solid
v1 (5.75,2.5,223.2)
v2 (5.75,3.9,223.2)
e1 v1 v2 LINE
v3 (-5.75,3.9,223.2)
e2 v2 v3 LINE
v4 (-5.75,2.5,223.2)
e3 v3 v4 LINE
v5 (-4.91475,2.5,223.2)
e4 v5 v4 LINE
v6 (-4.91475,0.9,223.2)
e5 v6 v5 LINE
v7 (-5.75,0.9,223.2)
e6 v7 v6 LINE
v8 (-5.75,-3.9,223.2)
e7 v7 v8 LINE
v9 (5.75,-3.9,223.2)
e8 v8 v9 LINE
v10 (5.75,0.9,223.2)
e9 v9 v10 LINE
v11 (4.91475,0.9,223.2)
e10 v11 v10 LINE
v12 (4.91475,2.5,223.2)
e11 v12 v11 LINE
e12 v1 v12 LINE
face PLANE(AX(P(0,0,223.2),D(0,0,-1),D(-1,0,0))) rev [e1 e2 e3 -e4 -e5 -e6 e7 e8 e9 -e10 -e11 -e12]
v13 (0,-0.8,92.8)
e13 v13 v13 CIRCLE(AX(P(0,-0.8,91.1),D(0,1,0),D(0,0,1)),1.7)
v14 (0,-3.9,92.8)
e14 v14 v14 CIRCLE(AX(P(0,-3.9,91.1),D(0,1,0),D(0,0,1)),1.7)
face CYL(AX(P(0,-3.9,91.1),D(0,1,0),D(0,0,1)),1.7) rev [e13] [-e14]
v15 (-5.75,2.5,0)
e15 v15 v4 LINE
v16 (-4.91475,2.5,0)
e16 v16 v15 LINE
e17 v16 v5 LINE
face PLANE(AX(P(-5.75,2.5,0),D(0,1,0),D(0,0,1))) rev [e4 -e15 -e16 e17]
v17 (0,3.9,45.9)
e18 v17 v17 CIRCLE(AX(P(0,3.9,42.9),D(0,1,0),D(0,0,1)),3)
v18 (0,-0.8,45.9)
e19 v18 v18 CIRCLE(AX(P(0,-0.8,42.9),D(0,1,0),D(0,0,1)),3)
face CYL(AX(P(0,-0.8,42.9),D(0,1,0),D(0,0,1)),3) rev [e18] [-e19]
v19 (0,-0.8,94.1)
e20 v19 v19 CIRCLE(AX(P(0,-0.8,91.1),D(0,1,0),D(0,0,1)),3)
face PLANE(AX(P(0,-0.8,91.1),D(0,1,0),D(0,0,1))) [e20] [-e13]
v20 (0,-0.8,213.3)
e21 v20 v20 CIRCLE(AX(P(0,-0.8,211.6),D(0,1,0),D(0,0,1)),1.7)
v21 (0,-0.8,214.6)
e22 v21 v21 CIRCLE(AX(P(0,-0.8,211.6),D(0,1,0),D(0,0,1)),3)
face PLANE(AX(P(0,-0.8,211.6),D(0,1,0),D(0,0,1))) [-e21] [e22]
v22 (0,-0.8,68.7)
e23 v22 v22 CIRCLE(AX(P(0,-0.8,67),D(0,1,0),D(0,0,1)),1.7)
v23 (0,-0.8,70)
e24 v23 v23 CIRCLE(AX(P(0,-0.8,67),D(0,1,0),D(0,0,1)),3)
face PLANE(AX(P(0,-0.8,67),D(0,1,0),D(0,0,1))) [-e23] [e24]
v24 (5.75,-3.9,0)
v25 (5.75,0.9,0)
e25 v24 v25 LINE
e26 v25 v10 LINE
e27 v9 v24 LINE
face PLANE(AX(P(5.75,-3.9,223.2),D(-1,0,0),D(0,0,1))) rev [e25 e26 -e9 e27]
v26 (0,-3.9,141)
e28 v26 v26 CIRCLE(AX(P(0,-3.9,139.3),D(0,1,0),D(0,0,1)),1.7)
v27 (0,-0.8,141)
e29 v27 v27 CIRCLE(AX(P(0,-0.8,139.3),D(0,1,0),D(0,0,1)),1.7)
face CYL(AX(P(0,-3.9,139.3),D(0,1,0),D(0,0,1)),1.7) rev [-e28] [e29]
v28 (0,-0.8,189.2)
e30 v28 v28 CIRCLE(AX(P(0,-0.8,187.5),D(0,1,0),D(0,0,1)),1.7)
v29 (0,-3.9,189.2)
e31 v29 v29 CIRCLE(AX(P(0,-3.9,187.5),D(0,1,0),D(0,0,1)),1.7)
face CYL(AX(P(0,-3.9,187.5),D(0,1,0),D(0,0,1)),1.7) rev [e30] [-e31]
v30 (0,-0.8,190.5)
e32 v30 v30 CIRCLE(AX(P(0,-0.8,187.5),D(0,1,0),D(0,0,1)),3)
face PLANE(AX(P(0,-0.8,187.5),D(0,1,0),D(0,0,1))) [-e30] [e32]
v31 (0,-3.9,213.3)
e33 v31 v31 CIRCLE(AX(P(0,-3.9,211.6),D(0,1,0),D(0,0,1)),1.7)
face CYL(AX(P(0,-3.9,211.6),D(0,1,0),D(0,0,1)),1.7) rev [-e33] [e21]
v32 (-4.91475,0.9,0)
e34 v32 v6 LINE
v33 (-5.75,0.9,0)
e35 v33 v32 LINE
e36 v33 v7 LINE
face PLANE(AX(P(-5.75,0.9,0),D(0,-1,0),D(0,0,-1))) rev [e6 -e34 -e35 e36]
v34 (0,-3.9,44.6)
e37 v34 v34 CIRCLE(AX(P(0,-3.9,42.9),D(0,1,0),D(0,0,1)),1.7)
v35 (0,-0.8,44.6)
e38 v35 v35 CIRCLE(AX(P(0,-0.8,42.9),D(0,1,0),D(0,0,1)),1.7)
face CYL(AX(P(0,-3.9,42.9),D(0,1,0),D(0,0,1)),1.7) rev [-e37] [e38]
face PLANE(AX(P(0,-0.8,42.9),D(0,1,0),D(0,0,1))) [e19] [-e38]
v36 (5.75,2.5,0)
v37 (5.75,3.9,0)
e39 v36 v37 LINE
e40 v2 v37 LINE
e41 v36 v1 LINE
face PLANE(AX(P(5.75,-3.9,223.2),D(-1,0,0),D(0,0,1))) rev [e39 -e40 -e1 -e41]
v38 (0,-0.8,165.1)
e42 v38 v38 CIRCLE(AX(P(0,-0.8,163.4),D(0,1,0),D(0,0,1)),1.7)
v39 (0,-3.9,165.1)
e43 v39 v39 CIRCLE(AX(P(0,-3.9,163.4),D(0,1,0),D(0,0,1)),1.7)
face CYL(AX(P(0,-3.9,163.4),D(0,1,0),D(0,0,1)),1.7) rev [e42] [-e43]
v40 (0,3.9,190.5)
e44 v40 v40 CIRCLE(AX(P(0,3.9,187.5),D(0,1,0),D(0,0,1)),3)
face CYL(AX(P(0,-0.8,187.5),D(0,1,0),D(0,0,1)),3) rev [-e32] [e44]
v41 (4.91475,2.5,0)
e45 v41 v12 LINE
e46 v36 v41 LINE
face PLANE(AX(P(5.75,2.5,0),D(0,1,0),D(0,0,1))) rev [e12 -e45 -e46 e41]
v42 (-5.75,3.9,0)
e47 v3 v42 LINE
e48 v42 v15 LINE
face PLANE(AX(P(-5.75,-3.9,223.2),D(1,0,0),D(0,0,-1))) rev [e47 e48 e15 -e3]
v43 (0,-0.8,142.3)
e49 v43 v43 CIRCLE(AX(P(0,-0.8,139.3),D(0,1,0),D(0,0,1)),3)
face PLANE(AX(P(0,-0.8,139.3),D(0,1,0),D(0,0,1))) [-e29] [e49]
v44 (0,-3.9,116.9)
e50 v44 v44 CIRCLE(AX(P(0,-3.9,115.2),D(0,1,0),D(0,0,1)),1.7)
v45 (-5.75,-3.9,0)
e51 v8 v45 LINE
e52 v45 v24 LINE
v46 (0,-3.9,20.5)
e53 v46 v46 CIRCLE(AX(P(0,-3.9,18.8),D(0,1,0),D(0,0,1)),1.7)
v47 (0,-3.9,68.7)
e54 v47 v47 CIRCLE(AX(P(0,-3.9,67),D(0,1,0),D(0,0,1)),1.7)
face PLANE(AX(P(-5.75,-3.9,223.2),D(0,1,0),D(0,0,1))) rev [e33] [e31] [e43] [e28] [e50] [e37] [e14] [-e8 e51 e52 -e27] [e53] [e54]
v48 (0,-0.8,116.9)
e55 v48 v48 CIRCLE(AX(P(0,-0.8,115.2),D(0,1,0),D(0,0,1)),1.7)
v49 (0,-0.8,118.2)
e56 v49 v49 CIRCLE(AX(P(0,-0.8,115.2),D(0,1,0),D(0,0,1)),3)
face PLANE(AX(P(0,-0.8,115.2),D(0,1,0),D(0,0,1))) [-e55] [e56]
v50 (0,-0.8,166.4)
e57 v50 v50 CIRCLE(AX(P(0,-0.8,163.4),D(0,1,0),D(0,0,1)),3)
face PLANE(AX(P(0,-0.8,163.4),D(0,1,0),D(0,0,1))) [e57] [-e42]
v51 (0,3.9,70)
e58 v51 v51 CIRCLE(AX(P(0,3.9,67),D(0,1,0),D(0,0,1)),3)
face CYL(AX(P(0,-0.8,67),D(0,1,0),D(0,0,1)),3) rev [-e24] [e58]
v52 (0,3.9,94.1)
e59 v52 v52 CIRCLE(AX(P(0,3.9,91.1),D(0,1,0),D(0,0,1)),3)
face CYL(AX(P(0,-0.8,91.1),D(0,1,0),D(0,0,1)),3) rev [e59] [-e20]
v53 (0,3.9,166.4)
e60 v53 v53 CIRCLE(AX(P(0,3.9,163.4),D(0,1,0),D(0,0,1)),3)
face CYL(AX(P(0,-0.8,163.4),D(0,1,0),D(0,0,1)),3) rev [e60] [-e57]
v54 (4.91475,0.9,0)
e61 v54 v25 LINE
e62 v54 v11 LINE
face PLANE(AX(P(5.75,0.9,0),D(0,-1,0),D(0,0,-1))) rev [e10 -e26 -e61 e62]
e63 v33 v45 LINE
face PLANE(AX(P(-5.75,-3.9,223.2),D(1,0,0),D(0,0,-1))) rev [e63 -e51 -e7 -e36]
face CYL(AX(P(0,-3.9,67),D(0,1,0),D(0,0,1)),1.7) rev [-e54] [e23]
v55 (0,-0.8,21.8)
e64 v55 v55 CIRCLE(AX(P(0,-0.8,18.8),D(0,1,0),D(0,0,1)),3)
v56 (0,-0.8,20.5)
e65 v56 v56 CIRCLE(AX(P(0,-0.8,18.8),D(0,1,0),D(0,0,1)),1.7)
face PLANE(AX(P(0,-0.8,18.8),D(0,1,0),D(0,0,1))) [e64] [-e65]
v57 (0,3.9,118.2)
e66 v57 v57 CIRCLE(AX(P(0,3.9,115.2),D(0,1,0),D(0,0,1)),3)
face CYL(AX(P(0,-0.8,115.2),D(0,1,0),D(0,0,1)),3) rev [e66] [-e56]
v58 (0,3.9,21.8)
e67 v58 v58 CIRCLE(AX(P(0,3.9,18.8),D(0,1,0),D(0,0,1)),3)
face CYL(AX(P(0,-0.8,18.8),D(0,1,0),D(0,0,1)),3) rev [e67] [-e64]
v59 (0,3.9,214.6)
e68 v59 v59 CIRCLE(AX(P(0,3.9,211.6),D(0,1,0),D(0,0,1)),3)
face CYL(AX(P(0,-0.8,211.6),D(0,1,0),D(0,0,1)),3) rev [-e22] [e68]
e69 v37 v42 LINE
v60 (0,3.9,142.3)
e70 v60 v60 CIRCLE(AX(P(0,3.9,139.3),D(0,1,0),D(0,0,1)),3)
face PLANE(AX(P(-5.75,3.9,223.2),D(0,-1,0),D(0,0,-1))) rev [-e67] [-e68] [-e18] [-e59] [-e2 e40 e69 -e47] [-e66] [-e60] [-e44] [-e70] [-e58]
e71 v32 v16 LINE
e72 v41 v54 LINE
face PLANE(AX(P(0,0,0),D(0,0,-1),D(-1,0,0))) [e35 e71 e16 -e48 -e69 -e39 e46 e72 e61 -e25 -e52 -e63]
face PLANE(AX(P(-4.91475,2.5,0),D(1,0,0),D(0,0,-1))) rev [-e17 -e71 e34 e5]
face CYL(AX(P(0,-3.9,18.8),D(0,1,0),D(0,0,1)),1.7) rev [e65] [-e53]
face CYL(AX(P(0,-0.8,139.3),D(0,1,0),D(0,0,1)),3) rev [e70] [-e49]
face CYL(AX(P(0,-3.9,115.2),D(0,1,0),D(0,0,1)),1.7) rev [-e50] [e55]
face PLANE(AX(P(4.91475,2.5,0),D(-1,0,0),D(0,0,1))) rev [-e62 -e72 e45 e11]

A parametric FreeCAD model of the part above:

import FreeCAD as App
import Part
import Sketcher

doc = App.newDocument("Part")
params = doc.addObject("Spreadsheet::Sheet", "Params")
for row, (alias, value) in enumerate([
    ("sketch1_width", "11.5 mm"),
    ("sketch1_height", "7.8 mm"),
    ("pad1_length", "223.2 mm"),
    ("sketch2_height", "1.6 mm"),
    ("sketch3_diameter", "6 mm"),
    ("pocket2_length", "4.7 mm"),
    ("sketch4_diameter", "3.4 mm"),
], start=1):
    params.set(f"A{row}", alias)
    params.set(f"B{row}", "=" + value)
    params.setAlias(f"B{row}", alias)

body = doc.addObject("PartDesign::Body", "Body")

# Sketch on XY plane
sketch1 = body.newObject("Sketcher::SketchObject", "Sketch")
sketch1.AttachmentSupport = (doc.getObject("XY_Plane"), [""])
sketch1.MapMode = "FlatFace"
sketch1.addGeometry(Part.LineSegment(App.Vector(-5.75, 3.9, 0), App.Vector(-5.75, -3.9, 0)), False)
sketch1.addGeometry(Part.LineSegment(App.Vector(-5.75, -3.9, 0), App.Vector(5.75, -3.9, 0)), False)
sketch1.addGeometry(Part.LineSegment(App.Vector(5.75, -3.9, 0), App.Vector(5.75, 3.9, 0)), False)
sketch1.addGeometry(Part.LineSegment(App.Vector(5.75, 3.9, 0), App.Vector(-5.75, 3.9, 0)), False)
sketch1.addConstraint(Sketcher.Constraint("Coincident", 0, 2, 1, 1))
sketch1.addConstraint(Sketcher.Constraint("Coincident", 1, 2, 2, 1))
sketch1.addConstraint(Sketcher.Constraint("Coincident", 2, 2, 3, 1))
sketch1.addConstraint(Sketcher.Constraint("Coincident", 3, 2, 0, 1))
sketch1.addConstraint(Sketcher.Constraint("Vertical", 0))
sketch1.addConstraint(Sketcher.Constraint("Horizontal", 1))
sketch1.addConstraint(Sketcher.Constraint("Vertical", 2))
sketch1.addConstraint(Sketcher.Constraint("Horizontal", 3))
sketch1.addConstraint(Sketcher.Constraint("Symmetric", 0, 2, 2, 2, -1, 1))
sketch1.addConstraint(Sketcher.Constraint("DistanceX", 1, 1, 1, 2, 11.5))
sketch1.addConstraint(Sketcher.Constraint("DistanceY", 0, 2, 0, 1, 7.8))
sketch1.setExpression("Constraints[9]", "Params.sketch1_width")
sketch1.setExpression("Constraints[10]", "Params.sketch1_height")
pad1 = body.newObject("PartDesign::Pad", "Pad")
pad1.Profile = sketch1
pad1.setExpression("Length", "Params.pad1_length")

# Sketch on XY plane
sketch2 = body.newObject("Sketcher::SketchObject", "Sketch001")
sketch2.AttachmentSupport = (doc.getObject("XY_Plane"), [""])
sketch2.MapMode = "FlatFace"
sketch2.AttachmentOffset = App.Placement(App.Vector(0, 0, 223.2), App.Rotation())
sketch2.addGeometry(Part.LineSegment(App.Vector(4.91475, 2.5, 0), App.Vector(4.91475, 0.9, 0)), False)
sketch2.addGeometry(Part.LineSegment(App.Vector(4.91475, 0.9, 0), App.Vector(5.75, 0.9, 0)), False)
sketch2.addGeometry(Part.LineSegment(App.Vector(5.75, 0.9, 0), App.Vector(5.75, 2.5, 0)), False)
sketch2.addGeometry(Part.LineSegment(App.Vector(5.75, 2.5, 0), App.Vector(4.91475, 2.5, 0)), False)
sketch2.addGeometry(Part.LineSegment(App.Vector(-5.75, 2.5, 0), App.Vector(-5.75, 0.9, 0)), False)
sketch2.addGeometry(Part.LineSegment(App.Vector(-5.75, 0.9, 0), App.Vector(-4.91475, 0.9, 0)), False)
sketch2.addGeometry(Part.LineSegment(App.Vector(-4.91475, 0.9, 0), App.Vector(-4.91475, 2.5, 0)), False)
sketch2.addGeometry(Part.LineSegment(App.Vector(-4.91475, 2.5, 0), App.Vector(-5.75, 2.5, 0)), False)
sketch2.addConstraint(Sketcher.Constraint("Coincident", 0, 2, 1, 1))
sketch2.addConstraint(Sketcher.Constraint("Coincident", 1, 2, 2, 1))
sketch2.addConstraint(Sketcher.Constraint("Coincident", 2, 2, 3, 1))
sketch2.addConstraint(Sketcher.Constraint("Coincident", 3, 2, 0, 1))
sketch2.addConstraint(Sketcher.Constraint("Coincident", 4, 2, 5, 1))
sketch2.addConstraint(Sketcher.Constraint("Coincident", 5, 2, 6, 1))
sketch2.addConstraint(Sketcher.Constraint("Coincident", 6, 2, 7, 1))
sketch2.addConstraint(Sketcher.Constraint("Coincident", 7, 2, 4, 1))
sketch2.addConstraint(Sketcher.Constraint("Vertical", 0))
sketch2.addConstraint(Sketcher.Constraint("Horizontal", 1))
sketch2.addConstraint(Sketcher.Constraint("Vertical", 2))
sketch2.addConstraint(Sketcher.Constraint("Horizontal", 3))
sketch2.addConstraint(Sketcher.Constraint("Vertical", 4))
sketch2.addConstraint(Sketcher.Constraint("Horizontal", 5))
sketch2.addConstraint(Sketcher.Constraint("Vertical", 6))
sketch2.addConstraint(Sketcher.Constraint("Horizontal", 7))
sketch2.addConstraint(Sketcher.Constraint("Symmetric", 1, 2, 4, 2, -2))
sketch2.addConstraint(Sketcher.Constraint("Symmetric", 3, 2, 6, 2, -2))
sketch2.addConstraint(Sketcher.Constraint("DistanceY", 0, 2, 0, 1, 1.6))
sketch2.addConstraint(Sketcher.Constraint("DistanceY", -1, 1, 0, 2, 0.9))
sketch2.addConstraint(Sketcher.Constraint("DistanceX", 4, 2, 1, 2, 11.5))
sketch2.addConstraint(Sketcher.Constraint("DistanceX", 1, 1, 1, 2, 0.83525))
sketch2.setExpression("Constraints[18]", "Params.sketch2_height")
pocket1 = body.newObject("PartDesign::Pocket", "Pocket")
pocket1.Profile = sketch2
pocket1.Type = "ThroughAll"

# Sketch on XZ plane
sketch3 = body.newObject("Sketcher::SketchObject", "Sketch002")
sketch3.AttachmentSupport = (doc.getObject("XZ_Plane"), [""])
sketch3.MapMode = "FlatFace"
sketch3.AttachmentOffset = App.Placement(App.Vector(0, 0, -3.9), App.Rotation())
sketch3.addGeometry(Part.Circle(App.Vector(0, 211.6, 0), App.Vector(0, 0, 1), 3), False)
sketch3.addGeometry(Part.Circle(App.Vector(0, 187.5, 0), App.Vector(0, 0, 1), 3), False)
sketch3.addGeometry(Part.Circle(App.Vector(0, 163.4, 0), App.Vector(0, 0, 1), 3), False)
sketch3.addGeometry(Part.Circle(App.Vector(0, 139.3, 0), App.Vector(0, 0, 1), 3), False)
sketch3.addGeometry(Part.Circle(App.Vector(0, 115.2, 0), App.Vector(0, 0, 1), 3), False)
sketch3.addGeometry(Part.Circle(App.Vector(0, 91.1, 0), App.Vector(0, 0, 1), 3), False)
sketch3.addGeometry(Part.Circle(App.Vector(0, 67, 0), App.Vector(0, 0, 1), 3), False)
sketch3.addGeometry(Part.Circle(App.Vector(0, 42.9, 0), App.Vector(0, 0, 1), 3), False)
sketch3.addGeometry(Part.Circle(App.Vector(0, 18.8, 0), App.Vector(0, 0, 1), 3), False)
sketch3.addConstraint(Sketcher.Constraint("Equal", 0, 1))
sketch3.addConstraint(Sketcher.Constraint("Equal", 1, 2))
sketch3.addConstraint(Sketcher.Constraint("Equal", 2, 3))
sketch3.addConstraint(Sketcher.Constraint("Equal", 3, 4))
sketch3.addConstraint(Sketcher.Constraint("Equal", 4, 5))
sketch3.addConstraint(Sketcher.Constraint("Equal", 5, 6))
sketch3.addConstraint(Sketcher.Constraint("Equal", 6, 7))
sketch3.addConstraint(Sketcher.Constraint("Equal", 7, 8))
sketch3.addConstraint(Sketcher.Constraint("PointOnObject", 0, 3, -2))
sketch3.addConstraint(Sketcher.Constraint("PointOnObject", 1, 3, -2))
sketch3.addConstraint(Sketcher.Constraint("PointOnObject", 2, 3, -2))
sketch3.addConstraint(Sketcher.Constraint("PointOnObject", 3, 3, -2))
sketch3.addConstraint(Sketcher.Constraint("PointOnObject", 4, 3, -2))
sketch3.addConstraint(Sketcher.Constraint("PointOnObject", 5, 3, -2))
sketch3.addConstraint(Sketcher.Constraint("PointOnObject", 6, 3, -2))
sketch3.addConstraint(Sketcher.Constraint("PointOnObject", 7, 3, -2))
sketch3.addConstraint(Sketcher.Constraint("PointOnObject", 8, 3, -2))
sketch3.addConstraint(Sketcher.Constraint("Diameter", 0, 6.0))
sketch3.addConstraint(Sketcher.Constraint("DistanceY", -1, 1, 6, 3, 67.0))
sketch3.addConstraint(Sketcher.Constraint("DistanceY", -1, 1, 0, 3, 211.6))
sketch3.addConstraint(Sketcher.Constraint("DistanceY", -1, 1, 1, 3, 187.5))
sketch3.addConstraint(Sketcher.Constraint("DistanceY", -1, 1, 2, 3, 163.4))
sketch3.addConstraint(Sketcher.Constraint("DistanceY", -1, 1, 3, 3, 139.3))
sketch3.addConstraint(Sketcher.Constraint("DistanceY", -1, 1, 4, 3, 115.2))
sketch3.addConstraint(Sketcher.Constraint("DistanceY", -1, 1, 5, 3, 91.1))
sketch3.addConstraint(Sketcher.Constraint("DistanceY", -1, 1, 7, 3, 42.9))
sketch3.addConstraint(Sketcher.Constraint("DistanceY", -1, 1, 8, 3, 18.8))
sketch3.setExpression("Constraints[17]", "Params.sketch3_diameter")
pocket2 = body.newObject("PartDesign::Pocket", "Pocket001")
pocket2.Profile = sketch3
pocket2.setExpression("Length", "Params.pocket2_length")
pocket2.Reversed = True

# Sketch on XZ plane
sketch4 = body.newObject("Sketcher::SketchObject", "Sketch003")
sketch4.AttachmentSupport = (doc.getObject("XZ_Plane"), [""])
sketch4.MapMode = "FlatFace"
sketch4.AttachmentOffset = App.Placement(App.Vector(0, 0, 0.8), App.Rotation())
sketch4.addGeometry(Part.Circle(App.Vector(0, 211.6, 0), App.Vector(0, 0, 1), 1.7), False)
sketch4.addGeometry(Part.Circle(App.Vector(0, 187.5, 0), App.Vector(0, 0, 1), 1.7), False)
sketch4.addGeometry(Part.Circle(App.Vector(0, 163.4, 0), App.Vector(0, 0, 1), 1.7), False)
sketch4.addGeometry(Part.Circle(App.Vector(0, 139.3, 0), App.Vector(0, 0, 1), 1.7), False)
sketch4.addGeometry(Part.Circle(App.Vector(0, 115.2, 0), App.Vector(0, 0, 1), 1.7), False)
sketch4.addGeometry(Part.Circle(App.Vector(0, 91.1, 0), App.Vector(0, 0, 1), 1.7), False)
sketch4.addGeometry(Part.Circle(App.Vector(0, 67, 0), App.Vector(0, 0, 1), 1.7), False)
sketch4.addGeometry(Part.Circle(App.Vector(0, 42.9, 0), App.Vector(0, 0, 1), 1.7), False)
sketch4.addGeometry(Part.Circle(App.Vector(0, 18.8, 0), App.Vector(0, 0, 1), 1.7), False)
sketch4.addConstraint(Sketcher.Constraint("Equal", 0, 1))
sketch4.addConstraint(Sketcher.Constraint("Equal", 1, 2))
sketch4.addConstraint(Sketcher.Constraint("Equal", 2, 3))
sketch4.addConstraint(Sketcher.Constraint("Equal", 3, 4))
sketch4.addConstraint(Sketcher.Constraint("Equal", 4, 5))
sketch4.addConstraint(Sketcher.Constraint("Equal", 5, 6))
sketch4.addConstraint(Sketcher.Constraint("Equal", 6, 7))
sketch4.addConstraint(Sketcher.Constraint("Equal", 7, 8))
sketch4.addConstraint(Sketcher.Constraint("PointOnObject", 0, 3, -2))
sketch4.addConstraint(Sketcher.Constraint("PointOnObject", 1, 3, -2))
sketch4.addConstraint(Sketcher.Constraint("PointOnObject", 2, 3, -2))
sketch4.addConstraint(Sketcher.Constraint("PointOnObject", 3, 3, -2))
sketch4.addConstraint(Sketcher.Constraint("PointOnObject", 4, 3, -2))
sketch4.addConstraint(Sketcher.Constraint("PointOnObject", 5, 3, -2))
sketch4.addConstraint(Sketcher.Constraint("PointOnObject", 6, 3, -2))
sketch4.addConstraint(Sketcher.Constraint("PointOnObject", 7, 3, -2))
sketch4.addConstraint(Sketcher.Constraint("PointOnObject", 8, 3, -2))
sketch4.addConstraint(Sketcher.Constraint("Diameter", 0, 3.4))
sketch4.addConstraint(Sketcher.Constraint("DistanceY", -1, 1, 6, 3, 67.0))
sketch4.addConstraint(Sketcher.Constraint("DistanceY", -1, 1, 0, 3, 211.6))
sketch4.addConstraint(Sketcher.Constraint("DistanceY", -1, 1, 1, 3, 187.5))
sketch4.addConstraint(Sketcher.Constraint("DistanceY", -1, 1, 2, 3, 163.4))
sketch4.addConstraint(Sketcher.Constraint("DistanceY", -1, 1, 3, 3, 139.3))
sketch4.addConstraint(Sketcher.Constraint("DistanceY", -1, 1, 4, 3, 115.2))
sketch4.addConstraint(Sketcher.Constraint("DistanceY", -1, 1, 5, 3, 91.1))
sketch4.addConstraint(Sketcher.Constraint("DistanceY", -1, 1, 7, 3, 42.9))
sketch4.addConstraint(Sketcher.Constraint("DistanceY", -1, 1, 8, 3, 18.8))
sketch4.setExpression("Constraints[17]", "Params.sketch4_diameter")
pocket3 = body.newObject("PartDesign::Pocket", "Pocket002")
pocket3.Profile = sketch4
pocket3.Type = "ThroughAll"
pocket3.Reversed = True

doc.recompute()
